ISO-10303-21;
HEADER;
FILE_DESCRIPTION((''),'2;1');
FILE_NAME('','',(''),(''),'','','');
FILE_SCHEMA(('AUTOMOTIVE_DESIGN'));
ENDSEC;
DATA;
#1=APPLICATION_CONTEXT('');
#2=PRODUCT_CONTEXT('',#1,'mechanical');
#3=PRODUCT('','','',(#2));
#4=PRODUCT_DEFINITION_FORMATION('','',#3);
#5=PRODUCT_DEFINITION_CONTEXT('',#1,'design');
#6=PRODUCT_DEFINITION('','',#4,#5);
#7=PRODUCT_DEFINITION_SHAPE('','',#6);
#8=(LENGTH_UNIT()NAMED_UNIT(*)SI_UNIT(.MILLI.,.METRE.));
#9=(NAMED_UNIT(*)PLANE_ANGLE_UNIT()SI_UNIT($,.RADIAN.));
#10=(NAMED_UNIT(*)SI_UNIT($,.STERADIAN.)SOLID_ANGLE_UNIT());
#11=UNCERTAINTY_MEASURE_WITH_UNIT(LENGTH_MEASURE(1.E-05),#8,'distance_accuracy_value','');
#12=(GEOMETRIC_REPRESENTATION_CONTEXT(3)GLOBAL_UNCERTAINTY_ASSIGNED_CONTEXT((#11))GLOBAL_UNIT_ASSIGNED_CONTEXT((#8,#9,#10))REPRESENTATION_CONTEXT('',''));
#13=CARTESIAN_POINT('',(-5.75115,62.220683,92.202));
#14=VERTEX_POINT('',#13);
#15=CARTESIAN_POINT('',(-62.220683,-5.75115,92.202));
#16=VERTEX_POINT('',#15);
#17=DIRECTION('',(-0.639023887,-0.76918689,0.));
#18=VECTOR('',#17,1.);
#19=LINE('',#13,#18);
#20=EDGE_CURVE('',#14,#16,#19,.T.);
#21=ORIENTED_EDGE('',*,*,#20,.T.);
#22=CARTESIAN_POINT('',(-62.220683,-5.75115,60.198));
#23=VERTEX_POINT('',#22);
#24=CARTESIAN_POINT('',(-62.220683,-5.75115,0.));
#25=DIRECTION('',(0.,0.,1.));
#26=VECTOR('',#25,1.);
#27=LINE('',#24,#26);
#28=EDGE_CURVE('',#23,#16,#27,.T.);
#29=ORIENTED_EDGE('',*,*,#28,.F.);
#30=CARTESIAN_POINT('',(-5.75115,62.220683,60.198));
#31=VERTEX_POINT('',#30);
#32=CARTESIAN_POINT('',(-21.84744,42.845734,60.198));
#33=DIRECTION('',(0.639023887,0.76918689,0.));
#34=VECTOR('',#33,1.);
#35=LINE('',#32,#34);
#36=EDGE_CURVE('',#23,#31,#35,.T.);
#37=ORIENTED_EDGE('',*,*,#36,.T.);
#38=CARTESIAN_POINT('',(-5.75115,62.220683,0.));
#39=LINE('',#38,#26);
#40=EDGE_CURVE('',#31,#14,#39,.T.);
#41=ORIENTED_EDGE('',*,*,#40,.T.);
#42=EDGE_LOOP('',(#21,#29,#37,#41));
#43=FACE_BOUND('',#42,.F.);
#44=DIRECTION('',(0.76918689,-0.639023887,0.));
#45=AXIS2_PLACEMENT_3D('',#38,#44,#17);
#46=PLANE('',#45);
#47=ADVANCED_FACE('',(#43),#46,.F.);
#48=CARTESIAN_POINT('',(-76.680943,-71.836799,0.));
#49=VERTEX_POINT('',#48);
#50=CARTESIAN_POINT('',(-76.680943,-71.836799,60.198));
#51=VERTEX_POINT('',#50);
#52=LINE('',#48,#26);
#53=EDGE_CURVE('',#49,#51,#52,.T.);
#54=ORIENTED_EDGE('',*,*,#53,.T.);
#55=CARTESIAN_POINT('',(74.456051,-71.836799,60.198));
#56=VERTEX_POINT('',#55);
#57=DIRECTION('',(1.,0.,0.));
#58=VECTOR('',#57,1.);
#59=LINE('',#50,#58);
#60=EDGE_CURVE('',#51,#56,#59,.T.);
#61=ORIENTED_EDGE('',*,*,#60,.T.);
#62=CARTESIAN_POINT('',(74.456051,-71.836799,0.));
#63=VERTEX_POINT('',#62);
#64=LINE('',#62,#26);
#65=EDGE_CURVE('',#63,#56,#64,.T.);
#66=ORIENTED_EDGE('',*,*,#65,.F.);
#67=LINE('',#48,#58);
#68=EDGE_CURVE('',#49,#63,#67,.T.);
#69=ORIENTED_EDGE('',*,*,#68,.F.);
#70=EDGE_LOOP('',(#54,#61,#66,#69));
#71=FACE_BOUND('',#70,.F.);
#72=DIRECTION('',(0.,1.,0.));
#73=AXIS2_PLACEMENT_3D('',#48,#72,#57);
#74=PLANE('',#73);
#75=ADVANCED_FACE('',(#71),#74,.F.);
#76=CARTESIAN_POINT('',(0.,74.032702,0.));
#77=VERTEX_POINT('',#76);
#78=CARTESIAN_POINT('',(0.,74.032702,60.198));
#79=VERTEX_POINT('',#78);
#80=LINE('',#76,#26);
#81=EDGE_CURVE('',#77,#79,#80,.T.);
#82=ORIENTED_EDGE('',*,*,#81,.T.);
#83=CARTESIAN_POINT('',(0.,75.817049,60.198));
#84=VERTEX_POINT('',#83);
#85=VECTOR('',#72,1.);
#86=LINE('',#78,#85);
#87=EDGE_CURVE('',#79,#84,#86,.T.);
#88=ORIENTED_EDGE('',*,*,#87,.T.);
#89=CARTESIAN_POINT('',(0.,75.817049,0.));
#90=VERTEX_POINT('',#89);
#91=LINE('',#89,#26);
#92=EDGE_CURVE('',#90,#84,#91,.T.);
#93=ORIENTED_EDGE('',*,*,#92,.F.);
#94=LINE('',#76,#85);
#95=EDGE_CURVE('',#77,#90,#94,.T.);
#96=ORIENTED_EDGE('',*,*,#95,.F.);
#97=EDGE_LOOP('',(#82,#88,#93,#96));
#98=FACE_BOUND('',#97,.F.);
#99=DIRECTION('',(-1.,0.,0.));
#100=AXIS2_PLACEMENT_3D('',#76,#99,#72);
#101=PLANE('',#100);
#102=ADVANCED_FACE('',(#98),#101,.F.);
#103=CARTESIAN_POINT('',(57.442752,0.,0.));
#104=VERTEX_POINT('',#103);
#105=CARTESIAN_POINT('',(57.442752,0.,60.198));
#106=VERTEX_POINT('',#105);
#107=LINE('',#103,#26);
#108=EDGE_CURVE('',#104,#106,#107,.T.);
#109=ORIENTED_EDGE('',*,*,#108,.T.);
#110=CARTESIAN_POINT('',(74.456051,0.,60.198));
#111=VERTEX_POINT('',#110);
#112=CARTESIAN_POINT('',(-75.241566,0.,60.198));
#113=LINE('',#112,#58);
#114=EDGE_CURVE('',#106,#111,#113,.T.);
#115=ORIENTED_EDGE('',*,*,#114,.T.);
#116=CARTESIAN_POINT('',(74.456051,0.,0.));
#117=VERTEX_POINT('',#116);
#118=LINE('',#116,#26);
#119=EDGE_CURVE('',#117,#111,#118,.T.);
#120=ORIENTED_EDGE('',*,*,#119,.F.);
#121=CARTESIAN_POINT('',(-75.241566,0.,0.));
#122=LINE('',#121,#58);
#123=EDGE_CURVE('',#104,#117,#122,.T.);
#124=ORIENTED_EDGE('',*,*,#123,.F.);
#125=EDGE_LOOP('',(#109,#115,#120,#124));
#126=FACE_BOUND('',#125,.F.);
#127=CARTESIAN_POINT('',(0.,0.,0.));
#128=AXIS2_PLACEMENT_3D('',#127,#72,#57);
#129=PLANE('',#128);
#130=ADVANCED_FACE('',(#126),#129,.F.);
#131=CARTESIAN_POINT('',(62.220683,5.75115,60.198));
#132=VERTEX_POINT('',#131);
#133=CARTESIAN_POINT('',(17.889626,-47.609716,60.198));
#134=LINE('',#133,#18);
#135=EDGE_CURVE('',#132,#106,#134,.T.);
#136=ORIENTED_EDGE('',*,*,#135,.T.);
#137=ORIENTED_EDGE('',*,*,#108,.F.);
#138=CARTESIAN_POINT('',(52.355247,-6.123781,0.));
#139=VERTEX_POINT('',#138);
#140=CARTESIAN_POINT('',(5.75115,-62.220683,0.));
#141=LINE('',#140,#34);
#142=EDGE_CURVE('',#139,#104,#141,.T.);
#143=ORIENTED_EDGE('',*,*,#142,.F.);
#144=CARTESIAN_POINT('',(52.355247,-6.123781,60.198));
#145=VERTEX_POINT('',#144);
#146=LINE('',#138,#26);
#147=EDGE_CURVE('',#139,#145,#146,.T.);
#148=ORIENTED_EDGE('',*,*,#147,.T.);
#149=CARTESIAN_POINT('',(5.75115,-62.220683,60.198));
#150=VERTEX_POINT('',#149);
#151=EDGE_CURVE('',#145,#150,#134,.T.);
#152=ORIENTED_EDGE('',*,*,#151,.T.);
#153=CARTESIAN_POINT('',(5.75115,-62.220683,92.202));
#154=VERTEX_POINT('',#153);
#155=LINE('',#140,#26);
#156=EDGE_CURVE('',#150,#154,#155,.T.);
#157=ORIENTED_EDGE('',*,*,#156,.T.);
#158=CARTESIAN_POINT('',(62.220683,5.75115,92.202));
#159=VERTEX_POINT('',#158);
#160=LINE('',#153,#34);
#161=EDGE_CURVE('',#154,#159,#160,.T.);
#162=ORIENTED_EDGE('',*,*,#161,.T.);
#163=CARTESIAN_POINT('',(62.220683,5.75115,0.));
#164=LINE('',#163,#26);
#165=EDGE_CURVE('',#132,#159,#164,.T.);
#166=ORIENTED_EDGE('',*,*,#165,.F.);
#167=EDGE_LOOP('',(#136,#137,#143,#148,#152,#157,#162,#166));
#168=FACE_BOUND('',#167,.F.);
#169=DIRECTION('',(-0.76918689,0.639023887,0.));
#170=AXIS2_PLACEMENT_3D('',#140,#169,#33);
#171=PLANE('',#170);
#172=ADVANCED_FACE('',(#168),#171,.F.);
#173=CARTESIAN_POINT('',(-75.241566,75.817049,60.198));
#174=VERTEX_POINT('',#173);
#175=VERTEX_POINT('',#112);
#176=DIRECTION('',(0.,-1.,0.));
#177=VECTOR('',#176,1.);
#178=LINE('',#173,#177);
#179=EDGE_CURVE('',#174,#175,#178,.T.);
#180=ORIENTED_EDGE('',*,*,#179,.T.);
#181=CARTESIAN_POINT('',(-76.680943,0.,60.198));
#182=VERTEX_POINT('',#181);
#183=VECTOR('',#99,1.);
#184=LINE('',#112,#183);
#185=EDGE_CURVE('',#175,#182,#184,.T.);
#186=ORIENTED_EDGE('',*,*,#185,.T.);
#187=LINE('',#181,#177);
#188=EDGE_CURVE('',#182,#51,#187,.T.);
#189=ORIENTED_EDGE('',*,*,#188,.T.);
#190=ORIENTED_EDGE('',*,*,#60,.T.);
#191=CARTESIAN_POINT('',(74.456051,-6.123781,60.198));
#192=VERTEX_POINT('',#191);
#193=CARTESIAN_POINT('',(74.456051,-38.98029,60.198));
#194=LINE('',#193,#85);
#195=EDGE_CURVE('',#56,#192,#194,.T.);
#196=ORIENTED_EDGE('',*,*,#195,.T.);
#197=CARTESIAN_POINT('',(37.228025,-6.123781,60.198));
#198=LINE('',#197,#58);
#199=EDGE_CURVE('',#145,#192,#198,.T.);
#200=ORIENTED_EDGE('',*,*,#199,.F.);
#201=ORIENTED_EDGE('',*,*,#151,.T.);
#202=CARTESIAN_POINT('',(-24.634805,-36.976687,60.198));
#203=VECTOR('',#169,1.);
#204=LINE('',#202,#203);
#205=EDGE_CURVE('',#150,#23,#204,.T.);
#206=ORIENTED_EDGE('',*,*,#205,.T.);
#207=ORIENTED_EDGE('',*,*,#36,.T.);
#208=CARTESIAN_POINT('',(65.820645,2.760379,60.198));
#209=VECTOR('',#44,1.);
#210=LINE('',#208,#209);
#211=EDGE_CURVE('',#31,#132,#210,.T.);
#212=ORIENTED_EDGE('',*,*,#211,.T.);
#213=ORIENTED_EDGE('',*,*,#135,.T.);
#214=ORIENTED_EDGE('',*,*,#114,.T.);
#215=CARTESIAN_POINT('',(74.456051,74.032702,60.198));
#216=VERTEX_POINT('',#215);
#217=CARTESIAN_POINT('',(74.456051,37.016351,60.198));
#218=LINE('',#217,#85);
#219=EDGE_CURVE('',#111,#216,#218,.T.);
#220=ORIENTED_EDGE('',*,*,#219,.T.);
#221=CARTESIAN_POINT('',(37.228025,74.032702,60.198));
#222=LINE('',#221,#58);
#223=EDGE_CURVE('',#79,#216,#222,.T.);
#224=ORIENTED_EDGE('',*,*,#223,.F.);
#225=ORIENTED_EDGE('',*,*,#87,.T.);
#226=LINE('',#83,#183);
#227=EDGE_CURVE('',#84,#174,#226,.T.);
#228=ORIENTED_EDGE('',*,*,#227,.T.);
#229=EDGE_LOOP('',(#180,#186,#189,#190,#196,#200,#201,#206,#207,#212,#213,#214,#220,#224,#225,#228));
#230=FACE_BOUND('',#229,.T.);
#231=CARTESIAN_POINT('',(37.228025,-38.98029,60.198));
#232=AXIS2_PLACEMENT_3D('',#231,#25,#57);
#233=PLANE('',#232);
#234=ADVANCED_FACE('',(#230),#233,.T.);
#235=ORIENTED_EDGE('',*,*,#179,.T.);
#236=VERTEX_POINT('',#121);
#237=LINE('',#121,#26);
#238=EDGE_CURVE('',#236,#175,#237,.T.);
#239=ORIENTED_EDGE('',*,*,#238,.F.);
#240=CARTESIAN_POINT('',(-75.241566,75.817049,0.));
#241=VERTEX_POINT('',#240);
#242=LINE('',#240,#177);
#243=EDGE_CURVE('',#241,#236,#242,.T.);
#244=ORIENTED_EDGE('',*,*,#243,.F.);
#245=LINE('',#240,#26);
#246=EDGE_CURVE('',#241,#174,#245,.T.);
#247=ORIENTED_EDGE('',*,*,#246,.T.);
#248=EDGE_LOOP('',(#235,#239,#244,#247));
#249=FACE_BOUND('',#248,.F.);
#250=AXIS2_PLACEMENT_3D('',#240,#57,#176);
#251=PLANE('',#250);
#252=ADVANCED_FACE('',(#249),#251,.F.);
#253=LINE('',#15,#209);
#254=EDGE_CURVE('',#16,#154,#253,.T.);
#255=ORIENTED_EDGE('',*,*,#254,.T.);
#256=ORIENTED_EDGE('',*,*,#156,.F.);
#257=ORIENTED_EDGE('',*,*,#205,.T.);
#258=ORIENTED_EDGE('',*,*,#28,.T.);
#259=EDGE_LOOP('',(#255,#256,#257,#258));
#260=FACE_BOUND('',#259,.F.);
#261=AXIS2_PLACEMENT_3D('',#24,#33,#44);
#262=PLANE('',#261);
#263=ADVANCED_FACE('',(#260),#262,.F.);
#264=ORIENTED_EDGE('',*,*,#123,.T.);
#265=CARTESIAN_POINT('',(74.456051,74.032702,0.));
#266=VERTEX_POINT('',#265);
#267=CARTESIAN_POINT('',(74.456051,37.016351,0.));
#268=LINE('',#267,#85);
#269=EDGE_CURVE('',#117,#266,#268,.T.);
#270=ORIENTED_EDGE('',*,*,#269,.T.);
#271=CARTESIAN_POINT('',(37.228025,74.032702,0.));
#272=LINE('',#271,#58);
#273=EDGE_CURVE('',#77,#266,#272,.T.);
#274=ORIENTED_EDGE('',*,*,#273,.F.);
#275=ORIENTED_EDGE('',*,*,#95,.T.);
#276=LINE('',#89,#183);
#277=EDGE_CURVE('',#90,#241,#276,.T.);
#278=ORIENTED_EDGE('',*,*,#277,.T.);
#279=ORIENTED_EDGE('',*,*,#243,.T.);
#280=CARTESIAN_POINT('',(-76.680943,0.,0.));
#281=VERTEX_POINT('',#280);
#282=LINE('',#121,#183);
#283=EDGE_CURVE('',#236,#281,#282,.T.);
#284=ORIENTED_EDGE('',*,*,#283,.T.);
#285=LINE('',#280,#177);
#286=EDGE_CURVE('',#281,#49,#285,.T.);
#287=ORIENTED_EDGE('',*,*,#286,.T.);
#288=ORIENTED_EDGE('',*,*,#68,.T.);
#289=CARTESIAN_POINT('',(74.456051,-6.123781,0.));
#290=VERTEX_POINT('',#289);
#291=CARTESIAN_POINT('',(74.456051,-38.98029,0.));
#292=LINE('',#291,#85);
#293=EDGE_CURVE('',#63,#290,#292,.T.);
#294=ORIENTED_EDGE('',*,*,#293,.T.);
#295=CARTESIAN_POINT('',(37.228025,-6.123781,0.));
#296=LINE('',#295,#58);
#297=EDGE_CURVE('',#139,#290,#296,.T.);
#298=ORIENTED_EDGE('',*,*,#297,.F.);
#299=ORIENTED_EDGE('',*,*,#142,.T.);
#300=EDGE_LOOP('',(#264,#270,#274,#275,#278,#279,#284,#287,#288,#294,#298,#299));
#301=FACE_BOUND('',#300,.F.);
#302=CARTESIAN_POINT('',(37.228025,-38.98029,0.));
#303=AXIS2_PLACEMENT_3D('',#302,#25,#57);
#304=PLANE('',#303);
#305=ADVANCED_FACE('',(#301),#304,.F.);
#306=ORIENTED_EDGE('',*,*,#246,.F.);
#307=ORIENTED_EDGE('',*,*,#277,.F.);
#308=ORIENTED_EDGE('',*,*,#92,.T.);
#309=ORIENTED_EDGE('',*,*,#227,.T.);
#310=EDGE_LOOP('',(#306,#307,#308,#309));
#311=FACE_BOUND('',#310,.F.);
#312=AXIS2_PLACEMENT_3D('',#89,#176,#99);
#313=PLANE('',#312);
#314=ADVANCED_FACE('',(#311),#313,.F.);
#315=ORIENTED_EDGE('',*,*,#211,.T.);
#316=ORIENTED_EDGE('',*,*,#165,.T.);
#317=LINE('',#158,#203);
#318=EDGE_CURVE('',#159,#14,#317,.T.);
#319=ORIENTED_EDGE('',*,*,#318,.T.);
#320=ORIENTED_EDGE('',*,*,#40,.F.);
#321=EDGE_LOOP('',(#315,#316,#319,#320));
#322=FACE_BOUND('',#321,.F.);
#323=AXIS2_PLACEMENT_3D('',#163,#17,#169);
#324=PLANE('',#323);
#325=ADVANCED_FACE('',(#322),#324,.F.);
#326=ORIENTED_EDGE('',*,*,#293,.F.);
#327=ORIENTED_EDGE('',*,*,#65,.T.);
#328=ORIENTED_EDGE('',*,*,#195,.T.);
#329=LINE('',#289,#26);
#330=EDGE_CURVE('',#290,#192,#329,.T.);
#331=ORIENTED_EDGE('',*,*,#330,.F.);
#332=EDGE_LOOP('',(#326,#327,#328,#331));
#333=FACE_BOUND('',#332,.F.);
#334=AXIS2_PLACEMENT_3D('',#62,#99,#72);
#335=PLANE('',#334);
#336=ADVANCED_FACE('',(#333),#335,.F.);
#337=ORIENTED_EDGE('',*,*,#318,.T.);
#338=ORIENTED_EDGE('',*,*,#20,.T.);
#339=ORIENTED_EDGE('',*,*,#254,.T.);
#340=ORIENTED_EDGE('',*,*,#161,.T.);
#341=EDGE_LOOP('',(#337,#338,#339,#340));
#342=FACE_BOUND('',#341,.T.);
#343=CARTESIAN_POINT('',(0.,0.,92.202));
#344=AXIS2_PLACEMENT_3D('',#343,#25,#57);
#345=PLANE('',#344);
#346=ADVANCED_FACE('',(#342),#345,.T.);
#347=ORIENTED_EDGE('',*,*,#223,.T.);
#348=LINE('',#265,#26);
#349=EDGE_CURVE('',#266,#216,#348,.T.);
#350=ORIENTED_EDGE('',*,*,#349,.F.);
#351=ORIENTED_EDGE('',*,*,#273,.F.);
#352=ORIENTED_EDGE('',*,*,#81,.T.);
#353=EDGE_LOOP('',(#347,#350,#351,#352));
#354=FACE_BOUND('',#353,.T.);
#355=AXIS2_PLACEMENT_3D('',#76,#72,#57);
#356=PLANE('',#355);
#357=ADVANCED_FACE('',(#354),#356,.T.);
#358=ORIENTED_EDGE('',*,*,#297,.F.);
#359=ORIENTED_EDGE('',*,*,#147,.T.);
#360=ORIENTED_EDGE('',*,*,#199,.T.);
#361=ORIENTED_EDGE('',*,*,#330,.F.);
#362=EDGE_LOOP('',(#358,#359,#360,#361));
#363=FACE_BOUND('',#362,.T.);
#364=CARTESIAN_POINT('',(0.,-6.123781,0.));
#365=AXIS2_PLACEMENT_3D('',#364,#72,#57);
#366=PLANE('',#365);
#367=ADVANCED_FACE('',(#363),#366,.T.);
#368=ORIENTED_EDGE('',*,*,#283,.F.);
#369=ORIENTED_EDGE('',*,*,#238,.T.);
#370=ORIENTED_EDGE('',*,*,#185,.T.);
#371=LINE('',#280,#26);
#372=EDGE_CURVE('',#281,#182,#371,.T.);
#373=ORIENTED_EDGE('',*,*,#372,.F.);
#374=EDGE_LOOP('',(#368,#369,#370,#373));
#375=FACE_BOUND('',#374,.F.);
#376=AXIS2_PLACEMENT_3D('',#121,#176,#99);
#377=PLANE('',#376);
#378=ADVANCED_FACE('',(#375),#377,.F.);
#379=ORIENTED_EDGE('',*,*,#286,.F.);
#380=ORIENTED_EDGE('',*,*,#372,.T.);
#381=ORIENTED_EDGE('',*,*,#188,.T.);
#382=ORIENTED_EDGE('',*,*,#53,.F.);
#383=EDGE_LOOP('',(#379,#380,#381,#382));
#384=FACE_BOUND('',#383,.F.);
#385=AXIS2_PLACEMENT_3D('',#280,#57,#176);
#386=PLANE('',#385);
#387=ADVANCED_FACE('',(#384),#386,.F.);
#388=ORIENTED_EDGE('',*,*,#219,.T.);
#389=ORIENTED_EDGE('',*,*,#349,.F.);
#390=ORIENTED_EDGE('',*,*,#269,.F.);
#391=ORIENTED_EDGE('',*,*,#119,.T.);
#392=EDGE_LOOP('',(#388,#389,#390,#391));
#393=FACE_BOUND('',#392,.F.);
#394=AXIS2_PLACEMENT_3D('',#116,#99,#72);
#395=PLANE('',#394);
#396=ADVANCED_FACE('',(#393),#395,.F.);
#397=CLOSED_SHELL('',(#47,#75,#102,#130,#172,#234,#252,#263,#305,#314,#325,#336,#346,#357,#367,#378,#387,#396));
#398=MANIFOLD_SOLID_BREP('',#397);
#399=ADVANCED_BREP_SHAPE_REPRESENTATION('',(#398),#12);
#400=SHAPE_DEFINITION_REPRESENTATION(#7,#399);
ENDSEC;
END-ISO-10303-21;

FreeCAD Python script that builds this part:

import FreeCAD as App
import Part
import Sketcher
Q = App.Units.Quantity


def add_polygon(sketch, points):
    """Adds a closed chain of lines whose ends are joined by coincident constraints."""
    first, n = sketch.GeometryCount, len(points)
    for a, b in zip(points, points[1:] + points[:1]):
        sketch.addGeometry(Part.LineSegment(App.Vector(*a, 0), App.Vector(*b, 0)), False)
    for i in range(n):
        sketch.addConstraint(Sketcher.Constraint("Coincident", first + i, 2, first + (i + 1) % n, 1))

doc = App.newDocument("Part")
body = doc.addObject("PartDesign::Body", "Body")

sketch1 = body.newObject("Sketcher::SketchObject", "Sketch")
sketch1.AttachmentSupport = (doc.getObject("XY_Plane"), [""])
sketch1.MapMode = "FlatFace"
add_polygon(sketch1, [(74.5, -71.8), (74.5, -6.1), (0, -6.1), (0, 0), (74.5, 0), (74.5, 74), (0, 74), (0, 75.8), (-75.2, 75.8), (-75.2, 0), (-76.7, 0), (-76.7, -71.8)])
sketch1.addConstraint([
    Sketcher.Constraint("Vertical", 0),
    Sketcher.Constraint("Horizontal", 1),
    Sketcher.Constraint("Vertical", 2),
    Sketcher.Constraint("Horizontal", 3),
    Sketcher.Constraint("Vertical", 4),
    Sketcher.Constraint("Horizontal", 5),
    Sketcher.Constraint("Vertical", 6),
    Sketcher.Constraint("Horizontal", 7),
    Sketcher.Constraint("Vertical", 8),
    Sketcher.Constraint("Horizontal", 9),
    Sketcher.Constraint("Vertical", 10),
    Sketcher.Constraint("Horizontal", 11),
    Sketcher.Constraint("Coincident", 2, 2, -1, 1),
    Sketcher.Constraint("PointOnObject", 5, 2, -2),
    Sketcher.Constraint("PointOnObject", 8, 2, -1),
    Sketcher.Constraint("Vertical", 0, 2, 3, 2),
    Sketcher.Constraint("DistanceY", 4, 1, 4, 2, Q("74.032702 mm")),
    Sketcher.Constraint("DistanceY", 10, 2, 10, 1, Q("71.836799 mm")),
    Sketcher.Constraint("DistanceX", 1, 2, 1, 1, Q("74.456051 mm")),
    Sketcher.Constraint("DistanceY", 0, 1, 0, 2, Q("65.713018 mm")),
    Sketcher.Constraint("DistanceY", 8, 2, 8, 1, Q("75.817049 mm")),
    Sketcher.Constraint("DistanceX", 7, 2, 7, 1, Q("75.241566 mm")),
    Sketcher.Constraint("DistanceX", 9, 2, 9, 1, Q("1.439378 mm")),
])
pad1 = body.newObject("PartDesign::Pad", "Pad")
pad1.Profile = sketch1
pad1.Length = Q("2.37 in")

sketch2 = body.newObject("Sketcher::SketchObject", "Sketch001")
sketch2.AttachmentSupport = (doc.getObject("XY_Plane"), [""])
sketch2.MapMode = "FlatFace"
add_polygon(sketch2, [(-6, 62), (-62, -6), (6, -62), (62, 6)])
sketch2.addConstraint([
    Sketcher.Constraint("Symmetric", 0, 2, 2, 2, -1, 1),
    Sketcher.Constraint("Symmetric", 1, 2, 3, 2, -1, 1),
    Sketcher.Constraint("Perpendicular", 0, 1),
    Sketcher.Constraint("Equal", 0, 1),
    Sketcher.Constraint("DistanceY", 0, 2, 2, 2, Q("11.502299 mm")),
    Sketcher.Constraint("Distance", 0, Q("88.368424 mm")),
])
pad2 = body.newObject("PartDesign::Pad", "Pad001")
pad2.Profile = sketch2
pad2.Length = Q("3.63 in")

doc.recompute()
